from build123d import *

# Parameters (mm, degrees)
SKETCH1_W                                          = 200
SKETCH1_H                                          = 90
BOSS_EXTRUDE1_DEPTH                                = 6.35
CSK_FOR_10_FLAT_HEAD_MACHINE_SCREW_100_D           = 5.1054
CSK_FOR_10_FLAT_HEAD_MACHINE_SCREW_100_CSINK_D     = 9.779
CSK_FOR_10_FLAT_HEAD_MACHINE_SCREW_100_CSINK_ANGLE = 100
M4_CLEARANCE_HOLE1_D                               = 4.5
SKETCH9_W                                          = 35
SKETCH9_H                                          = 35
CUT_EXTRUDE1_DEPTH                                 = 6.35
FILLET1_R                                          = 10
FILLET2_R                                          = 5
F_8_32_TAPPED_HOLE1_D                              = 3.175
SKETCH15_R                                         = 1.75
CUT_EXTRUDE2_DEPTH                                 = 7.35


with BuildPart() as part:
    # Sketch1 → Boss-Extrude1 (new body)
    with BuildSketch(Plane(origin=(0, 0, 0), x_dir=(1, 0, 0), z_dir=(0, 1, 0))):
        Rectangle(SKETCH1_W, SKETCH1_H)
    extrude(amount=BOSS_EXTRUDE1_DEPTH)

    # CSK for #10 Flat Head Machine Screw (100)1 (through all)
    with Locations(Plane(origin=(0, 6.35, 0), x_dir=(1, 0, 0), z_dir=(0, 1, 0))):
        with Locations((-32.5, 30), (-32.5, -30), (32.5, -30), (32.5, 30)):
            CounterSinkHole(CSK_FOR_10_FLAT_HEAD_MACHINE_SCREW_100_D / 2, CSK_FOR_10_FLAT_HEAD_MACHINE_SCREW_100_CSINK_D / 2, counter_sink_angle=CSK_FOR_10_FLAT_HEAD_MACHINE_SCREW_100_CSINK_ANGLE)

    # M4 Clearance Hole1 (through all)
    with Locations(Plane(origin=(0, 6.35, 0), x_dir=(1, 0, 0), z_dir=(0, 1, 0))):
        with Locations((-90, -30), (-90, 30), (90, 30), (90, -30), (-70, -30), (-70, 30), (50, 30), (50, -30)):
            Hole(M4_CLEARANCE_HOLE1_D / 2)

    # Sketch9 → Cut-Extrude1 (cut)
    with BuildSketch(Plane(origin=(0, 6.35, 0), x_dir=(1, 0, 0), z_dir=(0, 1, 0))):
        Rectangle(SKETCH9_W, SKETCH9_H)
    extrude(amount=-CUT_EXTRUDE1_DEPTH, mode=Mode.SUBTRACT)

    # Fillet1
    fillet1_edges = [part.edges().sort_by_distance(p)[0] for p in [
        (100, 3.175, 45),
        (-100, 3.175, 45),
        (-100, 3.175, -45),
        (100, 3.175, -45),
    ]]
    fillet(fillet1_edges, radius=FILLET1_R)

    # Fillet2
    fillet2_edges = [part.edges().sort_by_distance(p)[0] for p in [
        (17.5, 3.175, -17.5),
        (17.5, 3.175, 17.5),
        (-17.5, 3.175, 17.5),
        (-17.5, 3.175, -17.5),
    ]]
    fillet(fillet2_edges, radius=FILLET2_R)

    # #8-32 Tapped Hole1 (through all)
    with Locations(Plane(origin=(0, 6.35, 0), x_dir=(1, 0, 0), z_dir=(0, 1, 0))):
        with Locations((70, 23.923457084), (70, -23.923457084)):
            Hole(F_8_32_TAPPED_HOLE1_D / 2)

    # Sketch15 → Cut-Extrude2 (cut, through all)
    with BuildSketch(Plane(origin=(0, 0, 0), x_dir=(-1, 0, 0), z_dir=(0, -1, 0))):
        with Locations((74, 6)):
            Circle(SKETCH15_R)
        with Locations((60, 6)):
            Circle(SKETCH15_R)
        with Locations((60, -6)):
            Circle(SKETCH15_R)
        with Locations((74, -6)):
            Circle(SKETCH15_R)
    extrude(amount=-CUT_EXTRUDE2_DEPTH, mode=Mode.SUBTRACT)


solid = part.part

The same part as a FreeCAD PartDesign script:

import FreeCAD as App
import Part
import Sketcher

V = App.Vector


def edges_at(feature, points):
    """Names of the edges that pass closest to the given points."""
    edges = feature.Shape.Edges
    near = lambda p: min(range(len(edges)), key=lambda i: edges[i].distToShape(Part.Vertex(*p))[0])
    return sorted({f"Edge{near(p) + 1}" for p in points})

doc = App.newDocument("Part")
body = doc.addObject("PartDesign::Body", "Body")

sketch1 = body.newObject("Sketcher::SketchObject", "Sketch")
sketch1.AttachmentSupport = (doc.getObject("XZ_Plane"), [""])
sketch1.MapMode = "FlatFace"
sketch1.addGeometry([
    Part.LineSegment(V(-100, -45, 0), V(-100, 45, 0)),
    Part.LineSegment(V(-100, 45, 0), V(100, 45, 0)),
    Part.LineSegment(V(100, 45, 0), V(100, -45, 0)),
    Part.LineSegment(V(100, -45, 0), V(-100, -45, 0)),
], False)
sketch1.addConstraint([
    Sketcher.Constraint("Coincident", 0, 2, 1, 1),
    Sketcher.Constraint("Coincident", 1, 2, 2, 1),
    Sketcher.Constraint("Coincident", 2, 2, 3, 1),
    Sketcher.Constraint("Coincident", 3, 2, 0, 1),
    Sketcher.Constraint("Vertical", 0),
    Sketcher.Constraint("Horizontal", 1),
    Sketcher.Constraint("Vertical", 2),
    Sketcher.Constraint("Horizontal", 3),
    Sketcher.Constraint("Symmetric", 0, 2, 2, 2, -1, 1),
    Sketcher.Constraint("DistanceX", 1, 1, 1, 2, 200.0),
    Sketcher.Constraint("DistanceY", 0, 1, 0, 2, 90.0),
])
pad1 = body.newObject("PartDesign::Pad", "Pad")
pad1.Profile = sketch1
pad1.Length = 6.35
pad1.Reversed = True

sketch2 = body.newObject("Sketcher::SketchObject", "Sketch001")
sketch2.AttachmentSupport = (doc.getObject("XZ_Plane"), [""])
sketch2.MapMode = "FlatFace"
sketch2.AttachmentOffset = App.Placement(V(0, 0, -6.35), App.Rotation())
sketch2.addGeometry([
    Part.Circle(V(-32.5, -30, 0), V(0, 0, 1), 2.6),
    Part.Circle(V(-32.5, 30, 0), V(0, 0, 1), 2.6),
    Part.Circle(V(32.5, 30, 0), V(0, 0, 1), 2.6),
    Part.Circle(V(32.5, -30, 0), V(0, 0, 1), 2.6),
], False)
sketch2.addConstraint([
    Sketcher.Constraint("Equal", 0, 1),
    Sketcher.Constraint("Equal", 1, 2),
    Sketcher.Constraint("Equal", 2, 3),
    Sketcher.Constraint("Symmetric", 0, 3, 2, 3, -1, 1),
    Sketcher.Constraint("Symmetric", 1, 3, 3, 3, -1, 1),
    Sketcher.Constraint("Symmetric", 1, 3, 2, 3, -2),
    Sketcher.Constraint("DistanceY", 0, 3, -1, 1, 30.0),
    Sketcher.Constraint("DistanceX", 1, 3, 2, 3, 65.0),
    Sketcher.Constraint("Diameter", 0, 5.1054),
])
doc.recompute()
hole = body.newObject("PartDesign::Hole", "Hole")
hole.Profile = sketch2
hole.ThreadType = "None"
hole.Diameter = 5.1054
hole.DepthType = "ThroughAll"
hole.HoleCutType = "Countersink"
hole.HoleCutDiameter = 9.779
hole.HoleCutCountersinkAngle = 100
hole.Reversed = True

sketch3 = body.newObject("Sketcher::SketchObject", "Sketch002")
sketch3.AttachmentSupport = (doc.getObject("XZ_Plane"), [""])
sketch3.MapMode = "FlatFace"
sketch3.AttachmentOffset = App.Placement(V(0, 0, -6.35), App.Rotation())
sketch3.addGeometry([
    Part.Circle(V(-90, 30, 0), V(0, 0, 1), 2.2),
    Part.Circle(V(-90, -30, 0), V(0, 0, 1), 2.2),
    Part.Circle(V(90, -30, 0), V(0, 0, 1), 2.2),
    Part.Circle(V(90, 30, 0), V(0, 0, 1), 2.2),
    Part.Circle(V(-70, 30, 0), V(0, 0, 1), 2.2),
    Part.Circle(V(-70, -30, 0), V(0, 0, 1), 2.2),
    Part.Circle(V(50, -30, 0), V(0, 0, 1), 2.2),
    Part.Circle(V(50, 30, 0), V(0, 0, 1), 2.2),
], False)
sketch3.addConstraint([
    Sketcher.Constraint("Equal", 0, 1),
    Sketcher.Constraint("Equal", 1, 2),
    Sketcher.Constraint("Equal", 2, 3),
    Sketcher.Constraint("Equal", 3, 4),
    Sketcher.Constraint("Equal", 4, 5),
    Sketcher.Constraint("Equal", 5, 6),
    Sketcher.Constraint("Equal", 6, 7),
    Sketcher.Constraint("Symmetric", 0, 3, 2, 3, -1, 1),
    Sketcher.Constraint("Symmetric", 1, 3, 3, 3, -1, 1),
    Sketcher.Constraint("Symmetric", 1, 3, 2, 3, -2),
    Sketcher.Constraint("Symmetric", 4, 3, 5, 3, -1),
    Sketcher.Constraint("Symmetric", 6, 3, 7, 3, -1),
    Sketcher.Constraint("Horizontal", 3, 3, 4, 3),
    Sketcher.Constraint("Horizontal", 5, 3, 6, 3),
    Sketcher.Constraint("Diameter", 0, 4.5),
    Sketcher.Constraint("DistanceX", 0, 3, -1, 1, 90.0),
    Sketcher.Constraint("DistanceY", -1, 1, 0, 3, 30.0),
    Sketcher.Constraint("DistanceX", 4, 3, -1, 1, 70.0),
    Sketcher.Constraint("DistanceX", -1, 1, 6, 3, 50.0),
])
doc.recompute()
hole2 = body.newObject("PartDesign::Hole", "Hole001")
hole2.Profile = sketch3
hole2.ThreadType = "None"
hole2.Diameter = 4.5
hole2.DepthType = "ThroughAll"
hole2.Reversed = True

sketch4 = body.newObject("Sketcher::SketchObject", "Sketch003")
sketch4.AttachmentSupport = (doc.getObject("XZ_Plane"), [""])
sketch4.MapMode = "FlatFace"
sketch4.AttachmentOffset = App.Placement(V(0, 0, -6.35), App.Rotation())
sketch4.addGeometry([
    Part.LineSegment(V(-18, -18, 0), V(-18, 18, 0)),
    Part.LineSegment(V(-18, 18, 0), V(18, 18, 0)),
    Part.LineSegment(V(18, 18, 0), V(18, -18, 0)),
    Part.LineSegment(V(18, -18, 0), V(-18, -18, 0)),
], False)
sketch4.addConstraint([
    Sketcher.Constraint("Coincident", 0, 2, 1, 1),
    Sketcher.Constraint("Coincident", 1, 2, 2, 1),
    Sketcher.Constraint("Coincident", 2, 2, 3, 1),
    Sketcher.Constraint("Coincident", 3, 2, 0, 1),
    Sketcher.Constraint("Vertical", 0),
    Sketcher.Constraint("Horizontal", 1),
    Sketcher.Constraint("Vertical", 2),
    Sketcher.Constraint("Horizontal", 3),
    Sketcher.Constraint("Symmetric", 0, 2, 2, 2, -1, 1),
    Sketcher.Constraint("Equal", 3, 0),
    Sketcher.Constraint("DistanceX", 1, 1, 1, 2, 35.0),
])
pocket1 = body.newObject("PartDesign::Pocket", "Pocket")
pocket1.Profile = sketch4
pocket1.Length = 6.35
pocket1.Reversed = True
doc.recompute()

fillet = body.newObject("PartDesign::Fillet", "Fillet")
fillet.Base = (pocket1, edges_at(pocket1, [
    (100, 3.175, 45),
    (-100, 3.175, 45),
    (-100, 3.175, -45),
    (100, 3.175, -45),
]))
fillet.Radius = 10
doc.recompute()

fillet2 = body.newObject("PartDesign::Fillet", "Fillet001")
fillet2.Base = (fillet, edges_at(fillet, [
    (17.5, 3.175, -17.5),
    (17.5, 3.175, 17.5),
    (-17.5, 3.175, 17.5),
    (-17.5, 3.175, -17.5),
]))
fillet2.Radius = 5

sketch5 = body.newObject("Sketcher::SketchObject", "Sketch004")
sketch5.AttachmentSupport = (doc.getObject("XZ_Plane"), [""])
sketch5.MapMode = "FlatFace"
sketch5.AttachmentOffset = App.Placement(V(0, 0, -6.35), App.Rotation())
sketch5.addGeometry([
    Part.Circle(V(70, -23.9, 0), V(0, 0, 1), 1.6),
    Part.Circle(V(70, 23.9, 0), V(0, 0, 1), 1.6),
], False)
sketch5.addConstraint([
    Sketcher.Constraint("Equal", 0, 1),
    Sketcher.Constraint("Symmetric", 0, 3, 1, 3, -1),
    Sketcher.Constraint("Diameter", 0, 3.175),
    Sketcher.Constraint("DistanceX", -1, 1, 0, 3, 70.0),
    Sketcher.Constraint("DistanceY", 0, 3, -1, 1, 23.923457),
])
doc.recompute()
hole3 = body.newObject("PartDesign::Hole", "Hole002")
hole3.Profile = sketch5
hole3.ThreadType = "None"
hole3.Diameter = 3.175
hole3.DepthType = "ThroughAll"
hole3.Reversed = True

sketch6 = body.newObject("Sketcher::SketchObject", "Sketch005")
sketch6.AttachmentSupport = (doc.getObject("XZ_Plane"), [""])
sketch6.MapMode = "FlatFace"
sketch6.addGeometry([
    Part.Circle(V(-74, -6, 0), V(0, 0, 1), 1.8),
    Part.Circle(V(-60, -6, 0), V(0, 0, 1), 1.8),
    Part.Circle(V(-60, 6, 0), V(0, 0, 1), 1.8),
    Part.Circle(V(-74, 6, 0), V(0, 0, 1), 1.8),
], False)
sketch6.addConstraint([
    Sketcher.Constraint("Equal", 0, 1),
    Sketcher.Constraint("Equal", 1, 2),
    Sketcher.Constraint("Equal", 2, 3),
    Sketcher.Constraint("Symmetric", 1, 3, 2, 3, -1),
    Sketcher.Constraint("Symmetric", 0, 3, 3, 3, -1),
    Sketcher.Constraint("Horizontal", 0, 3, 1, 3),
    Sketcher.Constraint("Diameter", 0, 3.5),
    Sketcher.Constraint("DistanceX", 0, 3, -1, 1, 74.0),
    Sketcher.Constraint("DistanceY", 0, 3, -1, 1, 6.0),
    Sketcher.Constraint("DistanceX", 1, 3, -1, 1, 60.0),
])
pocket2 = body.newObject("PartDesign::Pocket", "Pocket001")
pocket2.Profile = sketch6
pocket2.Type = "ThroughAll"

doc.recompute()
